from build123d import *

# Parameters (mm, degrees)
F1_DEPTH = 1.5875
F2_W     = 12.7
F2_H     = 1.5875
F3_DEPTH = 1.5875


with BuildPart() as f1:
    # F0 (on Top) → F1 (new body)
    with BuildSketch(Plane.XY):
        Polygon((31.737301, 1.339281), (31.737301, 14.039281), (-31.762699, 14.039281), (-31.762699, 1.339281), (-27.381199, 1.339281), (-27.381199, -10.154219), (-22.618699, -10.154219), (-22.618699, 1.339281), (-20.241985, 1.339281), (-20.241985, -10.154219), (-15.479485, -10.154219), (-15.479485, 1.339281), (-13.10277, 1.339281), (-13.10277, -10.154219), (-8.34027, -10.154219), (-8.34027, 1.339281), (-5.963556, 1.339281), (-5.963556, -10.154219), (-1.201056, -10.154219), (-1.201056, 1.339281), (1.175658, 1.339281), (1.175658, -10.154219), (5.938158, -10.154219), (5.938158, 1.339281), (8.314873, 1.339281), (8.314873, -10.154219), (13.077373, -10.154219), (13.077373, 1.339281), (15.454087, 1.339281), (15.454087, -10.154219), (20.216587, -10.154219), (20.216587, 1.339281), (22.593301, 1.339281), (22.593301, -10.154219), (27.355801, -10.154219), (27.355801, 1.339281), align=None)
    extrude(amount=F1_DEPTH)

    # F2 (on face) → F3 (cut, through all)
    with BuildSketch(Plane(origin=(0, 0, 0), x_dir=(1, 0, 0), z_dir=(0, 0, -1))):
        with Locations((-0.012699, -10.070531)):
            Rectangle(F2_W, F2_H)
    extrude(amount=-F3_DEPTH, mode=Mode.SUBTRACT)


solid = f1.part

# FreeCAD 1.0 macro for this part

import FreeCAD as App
import Part
import Sketcher
from FreeCAD import Vector
Q = App.Units.Quantity


def add_polygon(sketch, points):
    """Adds a closed chain of lines whose ends are joined by coincident constraints."""
    first, n = sketch.GeometryCount, len(points)
    for a, b in zip(points, points[1:] + points[:1]):
        sketch.addGeometry(Part.LineSegment(App.Vector(*a, 0), App.Vector(*b, 0)), False)
    for i in range(n):
        sketch.addConstraint(Sketcher.Constraint("Coincident", first + i, 2, first + (i + 1) % n, 1))

doc = App.newDocument("Part")
body = doc.addObject("PartDesign::Body", "Body")

# Sketch on XY plane
sketch1 = body.newObject("Sketcher::SketchObject", "Sketch")
sketch1.AttachmentSupport = (doc.getObject("XY_Plane"), [""])
sketch1.MapMode = "FlatFace"
add_polygon(sketch1, [(31.7, 1.3), (31.7, 14), (-31.8, 14), (-31.8, 1.3), (-27.4, 1.3), (-27.4, -10.2), (-22.6, -10.2), (-22.6, 1.3), (-20.2, 1.3), (-20.2, -10.2), (-15.5, -10.2), (-15.5, 1.3), (-13.1, 1.3), (-13.1, -10.2), (-8.3, -10.2), (-8.3, 1.3), (-6, 1.3), (-6, -10.2), (-1.2, -10.2), (-1.2, 1.3), (1.2, 1.3), (1.2, -10.2), (5.9, -10.2), (5.9, 1.3), (8.3, 1.3), (8.3, -10.2), (13.1, -10.2), (13.1, 1.3), (15.5, 1.3), (15.5, -10.2), (20.2, -10.2), (20.2, 1.3), (22.6, 1.3), (22.6, -10.2), (27.4, -10.2), (27.4, 1.3)])  # lines 0-35
sketch1.addConstraint(Sketcher.Constraint("Vertical", 0))
sketch1.addConstraint(Sketcher.Constraint("Horizontal", 1))
sketch1.addConstraint(Sketcher.Constraint("Vertical", 2))
sketch1.addConstraint(Sketcher.Constraint("Horizontal", 3))
sketch1.addConstraint(Sketcher.Constraint("Vertical", 4))
sketch1.addConstraint(Sketcher.Constraint("Horizontal", 5))
sketch1.addConstraint(Sketcher.Constraint("Vertical", 6))
sketch1.addConstraint(Sketcher.Constraint("Horizontal", 7))
sketch1.addConstraint(Sketcher.Constraint("Vertical", 8))
sketch1.addConstraint(Sketcher.Constraint("Horizontal", 9))
sketch1.addConstraint(Sketcher.Constraint("Vertical", 10))
sketch1.addConstraint(Sketcher.Constraint("Horizontal", 11))
sketch1.addConstraint(Sketcher.Constraint("Vertical", 12))
sketch1.addConstraint(Sketcher.Constraint("Horizontal", 13))
sketch1.addConstraint(Sketcher.Constraint("Vertical", 14))
sketch1.addConstraint(Sketcher.Constraint("Horizontal", 15))
sketch1.addConstraint(Sketcher.Constraint("Vertical", 16))
sketch1.addConstraint(Sketcher.Constraint("Horizontal", 17))
sketch1.addConstraint(Sketcher.Constraint("Vertical", 18))
sketch1.addConstraint(Sketcher.Constraint("Horizontal", 19))
sketch1.addConstraint(Sketcher.Constraint("Vertical", 20))
sketch1.addConstraint(Sketcher.Constraint("Horizontal", 21))
sketch1.addConstraint(Sketcher.Constraint("Vertical", 22))
sketch1.addConstraint(Sketcher.Constraint("Horizontal", 23))
sketch1.addConstraint(Sketcher.Constraint("Vertical", 24))
sketch1.addConstraint(Sketcher.Constraint("Horizontal", 25))
sketch1.addConstraint(Sketcher.Constraint("Vertical", 26))
sketch1.addConstraint(Sketcher.Constraint("Horizontal", 27))
sketch1.addConstraint(Sketcher.Constraint("Vertical", 28))
sketch1.addConstraint(Sketcher.Constraint("Horizontal", 29))
sketch1.addConstraint(Sketcher.Constraint("Vertical", 30))
sketch1.addConstraint(Sketcher.Constraint("Horizontal", 31))
sketch1.addConstraint(Sketcher.Constraint("Vertical", 32))
sketch1.addConstraint(Sketcher.Constraint("Horizontal", 33))
sketch1.addConstraint(Sketcher.Constraint("Vertical", 34))
sketch1.addConstraint(Sketcher.Constraint("Horizontal", 35))
sketch1.addConstraint(Sketcher.Constraint("Horizontal", 3, 2, 6, 2))
sketch1.addConstraint(Sketcher.Constraint("Horizontal", 5, 2, 8, 2))
sketch1.addConstraint(Sketcher.Constraint("Horizontal", 7, 2, 10, 2))
sketch1.addConstraint(Sketcher.Constraint("Horizontal", 9, 2, 12, 2))
sketch1.addConstraint(Sketcher.Constraint("Horizontal", 11, 2, 14, 2))
sketch1.addConstraint(Sketcher.Constraint("Horizontal", 13, 2, 16, 2))
sketch1.addConstraint(Sketcher.Constraint("Horizontal", 15, 2, 18, 2))
sketch1.addConstraint(Sketcher.Constraint("Horizontal", 17, 2, 20, 2))
sketch1.addConstraint(Sketcher.Constraint("Horizontal", 19, 2, 22, 2))
sketch1.addConstraint(Sketcher.Constraint("Horizontal", 21, 2, 24, 2))
sketch1.addConstraint(Sketcher.Constraint("Horizontal", 23, 2, 26, 2))
sketch1.addConstraint(Sketcher.Constraint("Horizontal", 25, 2, 28, 2))
sketch1.addConstraint(Sketcher.Constraint("Horizontal", 27, 2, 30, 2))
sketch1.addConstraint(Sketcher.Constraint("Horizontal", 29, 2, 32, 2))
sketch1.addConstraint(Sketcher.Constraint("Horizontal", 31, 2, 34, 2))
sketch1.addConstraint(Sketcher.Constraint("Equal", 5, 9))
sketch1.addConstraint(Sketcher.Constraint("Equal", 7, 11))
sketch1.addConstraint(Sketcher.Constraint("Equal", 9, 13))
sketch1.addConstraint(Sketcher.Constraint("Equal", 11, 15))
sketch1.addConstraint(Sketcher.Constraint("Equal", 13, 17))
sketch1.addConstraint(Sketcher.Constraint("Equal", 15, 19))
sketch1.addConstraint(Sketcher.Constraint("Equal", 17, 21))
sketch1.addConstraint(Sketcher.Constraint("Equal", 19, 23))
sketch1.addConstraint(Sketcher.Constraint("Equal", 21, 25))
sketch1.addConstraint(Sketcher.Constraint("Equal", 23, 27))
sketch1.addConstraint(Sketcher.Constraint("Equal", 25, 29))
sketch1.addConstraint(Sketcher.Constraint("Equal", 27, 31))
sketch1.addConstraint(Sketcher.Constraint("Equal", 29, 33))
sketch1.addConstraint(Sketcher.Constraint("Equal", 3, 35))
sketch1.addConstraint(Sketcher.Constraint("DistanceX", 1, 2, 1, 1, Q("2.5 in")))
sketch1.addConstraint(Sketcher.Constraint("DistanceY", 0, 1, 0, 2, Q("0.5 in")))
sketch1.addConstraint(Sketcher.Constraint("DistanceX", 5, 1, 5, 2, Q("0.1875 in")))
sketch1.addConstraint(Sketcher.Constraint("DistanceX", 2, 2, 5, 2, Q("0.36 in")))
sketch1.addConstraint(Sketcher.Constraint("DistanceY", 4, 2, 4, 1, Q("0.4525 in")))
sketch1.addConstraint(Sketcher.Constraint("DistanceX", 3, 2, -1, 1, Q("1.078 in")))
sketch1.addConstraint(Sketcher.Constraint("DistanceY", -1, 1, 0, 2, 14.039281))
pad1 = body.newObject("PartDesign::Pad", "Pad")
pad1.Profile = sketch1
pad1.Length = Q("0.0625 in")

# Sketch on XY plane
sketch2 = body.newObject("Sketcher::SketchObject", "Sketch001")
sketch2.AttachmentSupport = (doc.getObject("XY_Plane"), [""])
sketch2.MapMode = "FlatFace"
add_polygon(sketch2, [(-6.4, 9.3), (-6.4, 10.9), (6.3, 10.9), (6.3, 9.3)])  # lines 0-3
sketch2.addConstraint(Sketcher.Constraint("Vertical", 0))
sketch2.addConstraint(Sketcher.Constraint("Horizontal", 1))
sketch2.addConstraint(Sketcher.Constraint("Vertical", 2))
sketch2.addConstraint(Sketcher.Constraint("Horizontal", 3))
sketch2.addConstraint(Sketcher.Constraint("DistanceX", 1, 1, 1, 2, Q("0.5 in")))
sketch2.addConstraint(Sketcher.Constraint("DistanceY", 0, 1, 0, 2, Q("0.0625 in")))
sketch2.addConstraint(Sketcher.Constraint("DistanceX", 0, 2, -1, 1, Q("0.2505 in")))
sketch2.addConstraint(Sketcher.Constraint("DistanceY", -1, 1, 0, 2, 10.864281))
pocket1 = body.newObject("PartDesign::Pocket", "Pocket")
pocket1.Profile = sketch2
pocket1.Type = "ThroughAll"
pocket1.Reversed = True

doc.recompute()
